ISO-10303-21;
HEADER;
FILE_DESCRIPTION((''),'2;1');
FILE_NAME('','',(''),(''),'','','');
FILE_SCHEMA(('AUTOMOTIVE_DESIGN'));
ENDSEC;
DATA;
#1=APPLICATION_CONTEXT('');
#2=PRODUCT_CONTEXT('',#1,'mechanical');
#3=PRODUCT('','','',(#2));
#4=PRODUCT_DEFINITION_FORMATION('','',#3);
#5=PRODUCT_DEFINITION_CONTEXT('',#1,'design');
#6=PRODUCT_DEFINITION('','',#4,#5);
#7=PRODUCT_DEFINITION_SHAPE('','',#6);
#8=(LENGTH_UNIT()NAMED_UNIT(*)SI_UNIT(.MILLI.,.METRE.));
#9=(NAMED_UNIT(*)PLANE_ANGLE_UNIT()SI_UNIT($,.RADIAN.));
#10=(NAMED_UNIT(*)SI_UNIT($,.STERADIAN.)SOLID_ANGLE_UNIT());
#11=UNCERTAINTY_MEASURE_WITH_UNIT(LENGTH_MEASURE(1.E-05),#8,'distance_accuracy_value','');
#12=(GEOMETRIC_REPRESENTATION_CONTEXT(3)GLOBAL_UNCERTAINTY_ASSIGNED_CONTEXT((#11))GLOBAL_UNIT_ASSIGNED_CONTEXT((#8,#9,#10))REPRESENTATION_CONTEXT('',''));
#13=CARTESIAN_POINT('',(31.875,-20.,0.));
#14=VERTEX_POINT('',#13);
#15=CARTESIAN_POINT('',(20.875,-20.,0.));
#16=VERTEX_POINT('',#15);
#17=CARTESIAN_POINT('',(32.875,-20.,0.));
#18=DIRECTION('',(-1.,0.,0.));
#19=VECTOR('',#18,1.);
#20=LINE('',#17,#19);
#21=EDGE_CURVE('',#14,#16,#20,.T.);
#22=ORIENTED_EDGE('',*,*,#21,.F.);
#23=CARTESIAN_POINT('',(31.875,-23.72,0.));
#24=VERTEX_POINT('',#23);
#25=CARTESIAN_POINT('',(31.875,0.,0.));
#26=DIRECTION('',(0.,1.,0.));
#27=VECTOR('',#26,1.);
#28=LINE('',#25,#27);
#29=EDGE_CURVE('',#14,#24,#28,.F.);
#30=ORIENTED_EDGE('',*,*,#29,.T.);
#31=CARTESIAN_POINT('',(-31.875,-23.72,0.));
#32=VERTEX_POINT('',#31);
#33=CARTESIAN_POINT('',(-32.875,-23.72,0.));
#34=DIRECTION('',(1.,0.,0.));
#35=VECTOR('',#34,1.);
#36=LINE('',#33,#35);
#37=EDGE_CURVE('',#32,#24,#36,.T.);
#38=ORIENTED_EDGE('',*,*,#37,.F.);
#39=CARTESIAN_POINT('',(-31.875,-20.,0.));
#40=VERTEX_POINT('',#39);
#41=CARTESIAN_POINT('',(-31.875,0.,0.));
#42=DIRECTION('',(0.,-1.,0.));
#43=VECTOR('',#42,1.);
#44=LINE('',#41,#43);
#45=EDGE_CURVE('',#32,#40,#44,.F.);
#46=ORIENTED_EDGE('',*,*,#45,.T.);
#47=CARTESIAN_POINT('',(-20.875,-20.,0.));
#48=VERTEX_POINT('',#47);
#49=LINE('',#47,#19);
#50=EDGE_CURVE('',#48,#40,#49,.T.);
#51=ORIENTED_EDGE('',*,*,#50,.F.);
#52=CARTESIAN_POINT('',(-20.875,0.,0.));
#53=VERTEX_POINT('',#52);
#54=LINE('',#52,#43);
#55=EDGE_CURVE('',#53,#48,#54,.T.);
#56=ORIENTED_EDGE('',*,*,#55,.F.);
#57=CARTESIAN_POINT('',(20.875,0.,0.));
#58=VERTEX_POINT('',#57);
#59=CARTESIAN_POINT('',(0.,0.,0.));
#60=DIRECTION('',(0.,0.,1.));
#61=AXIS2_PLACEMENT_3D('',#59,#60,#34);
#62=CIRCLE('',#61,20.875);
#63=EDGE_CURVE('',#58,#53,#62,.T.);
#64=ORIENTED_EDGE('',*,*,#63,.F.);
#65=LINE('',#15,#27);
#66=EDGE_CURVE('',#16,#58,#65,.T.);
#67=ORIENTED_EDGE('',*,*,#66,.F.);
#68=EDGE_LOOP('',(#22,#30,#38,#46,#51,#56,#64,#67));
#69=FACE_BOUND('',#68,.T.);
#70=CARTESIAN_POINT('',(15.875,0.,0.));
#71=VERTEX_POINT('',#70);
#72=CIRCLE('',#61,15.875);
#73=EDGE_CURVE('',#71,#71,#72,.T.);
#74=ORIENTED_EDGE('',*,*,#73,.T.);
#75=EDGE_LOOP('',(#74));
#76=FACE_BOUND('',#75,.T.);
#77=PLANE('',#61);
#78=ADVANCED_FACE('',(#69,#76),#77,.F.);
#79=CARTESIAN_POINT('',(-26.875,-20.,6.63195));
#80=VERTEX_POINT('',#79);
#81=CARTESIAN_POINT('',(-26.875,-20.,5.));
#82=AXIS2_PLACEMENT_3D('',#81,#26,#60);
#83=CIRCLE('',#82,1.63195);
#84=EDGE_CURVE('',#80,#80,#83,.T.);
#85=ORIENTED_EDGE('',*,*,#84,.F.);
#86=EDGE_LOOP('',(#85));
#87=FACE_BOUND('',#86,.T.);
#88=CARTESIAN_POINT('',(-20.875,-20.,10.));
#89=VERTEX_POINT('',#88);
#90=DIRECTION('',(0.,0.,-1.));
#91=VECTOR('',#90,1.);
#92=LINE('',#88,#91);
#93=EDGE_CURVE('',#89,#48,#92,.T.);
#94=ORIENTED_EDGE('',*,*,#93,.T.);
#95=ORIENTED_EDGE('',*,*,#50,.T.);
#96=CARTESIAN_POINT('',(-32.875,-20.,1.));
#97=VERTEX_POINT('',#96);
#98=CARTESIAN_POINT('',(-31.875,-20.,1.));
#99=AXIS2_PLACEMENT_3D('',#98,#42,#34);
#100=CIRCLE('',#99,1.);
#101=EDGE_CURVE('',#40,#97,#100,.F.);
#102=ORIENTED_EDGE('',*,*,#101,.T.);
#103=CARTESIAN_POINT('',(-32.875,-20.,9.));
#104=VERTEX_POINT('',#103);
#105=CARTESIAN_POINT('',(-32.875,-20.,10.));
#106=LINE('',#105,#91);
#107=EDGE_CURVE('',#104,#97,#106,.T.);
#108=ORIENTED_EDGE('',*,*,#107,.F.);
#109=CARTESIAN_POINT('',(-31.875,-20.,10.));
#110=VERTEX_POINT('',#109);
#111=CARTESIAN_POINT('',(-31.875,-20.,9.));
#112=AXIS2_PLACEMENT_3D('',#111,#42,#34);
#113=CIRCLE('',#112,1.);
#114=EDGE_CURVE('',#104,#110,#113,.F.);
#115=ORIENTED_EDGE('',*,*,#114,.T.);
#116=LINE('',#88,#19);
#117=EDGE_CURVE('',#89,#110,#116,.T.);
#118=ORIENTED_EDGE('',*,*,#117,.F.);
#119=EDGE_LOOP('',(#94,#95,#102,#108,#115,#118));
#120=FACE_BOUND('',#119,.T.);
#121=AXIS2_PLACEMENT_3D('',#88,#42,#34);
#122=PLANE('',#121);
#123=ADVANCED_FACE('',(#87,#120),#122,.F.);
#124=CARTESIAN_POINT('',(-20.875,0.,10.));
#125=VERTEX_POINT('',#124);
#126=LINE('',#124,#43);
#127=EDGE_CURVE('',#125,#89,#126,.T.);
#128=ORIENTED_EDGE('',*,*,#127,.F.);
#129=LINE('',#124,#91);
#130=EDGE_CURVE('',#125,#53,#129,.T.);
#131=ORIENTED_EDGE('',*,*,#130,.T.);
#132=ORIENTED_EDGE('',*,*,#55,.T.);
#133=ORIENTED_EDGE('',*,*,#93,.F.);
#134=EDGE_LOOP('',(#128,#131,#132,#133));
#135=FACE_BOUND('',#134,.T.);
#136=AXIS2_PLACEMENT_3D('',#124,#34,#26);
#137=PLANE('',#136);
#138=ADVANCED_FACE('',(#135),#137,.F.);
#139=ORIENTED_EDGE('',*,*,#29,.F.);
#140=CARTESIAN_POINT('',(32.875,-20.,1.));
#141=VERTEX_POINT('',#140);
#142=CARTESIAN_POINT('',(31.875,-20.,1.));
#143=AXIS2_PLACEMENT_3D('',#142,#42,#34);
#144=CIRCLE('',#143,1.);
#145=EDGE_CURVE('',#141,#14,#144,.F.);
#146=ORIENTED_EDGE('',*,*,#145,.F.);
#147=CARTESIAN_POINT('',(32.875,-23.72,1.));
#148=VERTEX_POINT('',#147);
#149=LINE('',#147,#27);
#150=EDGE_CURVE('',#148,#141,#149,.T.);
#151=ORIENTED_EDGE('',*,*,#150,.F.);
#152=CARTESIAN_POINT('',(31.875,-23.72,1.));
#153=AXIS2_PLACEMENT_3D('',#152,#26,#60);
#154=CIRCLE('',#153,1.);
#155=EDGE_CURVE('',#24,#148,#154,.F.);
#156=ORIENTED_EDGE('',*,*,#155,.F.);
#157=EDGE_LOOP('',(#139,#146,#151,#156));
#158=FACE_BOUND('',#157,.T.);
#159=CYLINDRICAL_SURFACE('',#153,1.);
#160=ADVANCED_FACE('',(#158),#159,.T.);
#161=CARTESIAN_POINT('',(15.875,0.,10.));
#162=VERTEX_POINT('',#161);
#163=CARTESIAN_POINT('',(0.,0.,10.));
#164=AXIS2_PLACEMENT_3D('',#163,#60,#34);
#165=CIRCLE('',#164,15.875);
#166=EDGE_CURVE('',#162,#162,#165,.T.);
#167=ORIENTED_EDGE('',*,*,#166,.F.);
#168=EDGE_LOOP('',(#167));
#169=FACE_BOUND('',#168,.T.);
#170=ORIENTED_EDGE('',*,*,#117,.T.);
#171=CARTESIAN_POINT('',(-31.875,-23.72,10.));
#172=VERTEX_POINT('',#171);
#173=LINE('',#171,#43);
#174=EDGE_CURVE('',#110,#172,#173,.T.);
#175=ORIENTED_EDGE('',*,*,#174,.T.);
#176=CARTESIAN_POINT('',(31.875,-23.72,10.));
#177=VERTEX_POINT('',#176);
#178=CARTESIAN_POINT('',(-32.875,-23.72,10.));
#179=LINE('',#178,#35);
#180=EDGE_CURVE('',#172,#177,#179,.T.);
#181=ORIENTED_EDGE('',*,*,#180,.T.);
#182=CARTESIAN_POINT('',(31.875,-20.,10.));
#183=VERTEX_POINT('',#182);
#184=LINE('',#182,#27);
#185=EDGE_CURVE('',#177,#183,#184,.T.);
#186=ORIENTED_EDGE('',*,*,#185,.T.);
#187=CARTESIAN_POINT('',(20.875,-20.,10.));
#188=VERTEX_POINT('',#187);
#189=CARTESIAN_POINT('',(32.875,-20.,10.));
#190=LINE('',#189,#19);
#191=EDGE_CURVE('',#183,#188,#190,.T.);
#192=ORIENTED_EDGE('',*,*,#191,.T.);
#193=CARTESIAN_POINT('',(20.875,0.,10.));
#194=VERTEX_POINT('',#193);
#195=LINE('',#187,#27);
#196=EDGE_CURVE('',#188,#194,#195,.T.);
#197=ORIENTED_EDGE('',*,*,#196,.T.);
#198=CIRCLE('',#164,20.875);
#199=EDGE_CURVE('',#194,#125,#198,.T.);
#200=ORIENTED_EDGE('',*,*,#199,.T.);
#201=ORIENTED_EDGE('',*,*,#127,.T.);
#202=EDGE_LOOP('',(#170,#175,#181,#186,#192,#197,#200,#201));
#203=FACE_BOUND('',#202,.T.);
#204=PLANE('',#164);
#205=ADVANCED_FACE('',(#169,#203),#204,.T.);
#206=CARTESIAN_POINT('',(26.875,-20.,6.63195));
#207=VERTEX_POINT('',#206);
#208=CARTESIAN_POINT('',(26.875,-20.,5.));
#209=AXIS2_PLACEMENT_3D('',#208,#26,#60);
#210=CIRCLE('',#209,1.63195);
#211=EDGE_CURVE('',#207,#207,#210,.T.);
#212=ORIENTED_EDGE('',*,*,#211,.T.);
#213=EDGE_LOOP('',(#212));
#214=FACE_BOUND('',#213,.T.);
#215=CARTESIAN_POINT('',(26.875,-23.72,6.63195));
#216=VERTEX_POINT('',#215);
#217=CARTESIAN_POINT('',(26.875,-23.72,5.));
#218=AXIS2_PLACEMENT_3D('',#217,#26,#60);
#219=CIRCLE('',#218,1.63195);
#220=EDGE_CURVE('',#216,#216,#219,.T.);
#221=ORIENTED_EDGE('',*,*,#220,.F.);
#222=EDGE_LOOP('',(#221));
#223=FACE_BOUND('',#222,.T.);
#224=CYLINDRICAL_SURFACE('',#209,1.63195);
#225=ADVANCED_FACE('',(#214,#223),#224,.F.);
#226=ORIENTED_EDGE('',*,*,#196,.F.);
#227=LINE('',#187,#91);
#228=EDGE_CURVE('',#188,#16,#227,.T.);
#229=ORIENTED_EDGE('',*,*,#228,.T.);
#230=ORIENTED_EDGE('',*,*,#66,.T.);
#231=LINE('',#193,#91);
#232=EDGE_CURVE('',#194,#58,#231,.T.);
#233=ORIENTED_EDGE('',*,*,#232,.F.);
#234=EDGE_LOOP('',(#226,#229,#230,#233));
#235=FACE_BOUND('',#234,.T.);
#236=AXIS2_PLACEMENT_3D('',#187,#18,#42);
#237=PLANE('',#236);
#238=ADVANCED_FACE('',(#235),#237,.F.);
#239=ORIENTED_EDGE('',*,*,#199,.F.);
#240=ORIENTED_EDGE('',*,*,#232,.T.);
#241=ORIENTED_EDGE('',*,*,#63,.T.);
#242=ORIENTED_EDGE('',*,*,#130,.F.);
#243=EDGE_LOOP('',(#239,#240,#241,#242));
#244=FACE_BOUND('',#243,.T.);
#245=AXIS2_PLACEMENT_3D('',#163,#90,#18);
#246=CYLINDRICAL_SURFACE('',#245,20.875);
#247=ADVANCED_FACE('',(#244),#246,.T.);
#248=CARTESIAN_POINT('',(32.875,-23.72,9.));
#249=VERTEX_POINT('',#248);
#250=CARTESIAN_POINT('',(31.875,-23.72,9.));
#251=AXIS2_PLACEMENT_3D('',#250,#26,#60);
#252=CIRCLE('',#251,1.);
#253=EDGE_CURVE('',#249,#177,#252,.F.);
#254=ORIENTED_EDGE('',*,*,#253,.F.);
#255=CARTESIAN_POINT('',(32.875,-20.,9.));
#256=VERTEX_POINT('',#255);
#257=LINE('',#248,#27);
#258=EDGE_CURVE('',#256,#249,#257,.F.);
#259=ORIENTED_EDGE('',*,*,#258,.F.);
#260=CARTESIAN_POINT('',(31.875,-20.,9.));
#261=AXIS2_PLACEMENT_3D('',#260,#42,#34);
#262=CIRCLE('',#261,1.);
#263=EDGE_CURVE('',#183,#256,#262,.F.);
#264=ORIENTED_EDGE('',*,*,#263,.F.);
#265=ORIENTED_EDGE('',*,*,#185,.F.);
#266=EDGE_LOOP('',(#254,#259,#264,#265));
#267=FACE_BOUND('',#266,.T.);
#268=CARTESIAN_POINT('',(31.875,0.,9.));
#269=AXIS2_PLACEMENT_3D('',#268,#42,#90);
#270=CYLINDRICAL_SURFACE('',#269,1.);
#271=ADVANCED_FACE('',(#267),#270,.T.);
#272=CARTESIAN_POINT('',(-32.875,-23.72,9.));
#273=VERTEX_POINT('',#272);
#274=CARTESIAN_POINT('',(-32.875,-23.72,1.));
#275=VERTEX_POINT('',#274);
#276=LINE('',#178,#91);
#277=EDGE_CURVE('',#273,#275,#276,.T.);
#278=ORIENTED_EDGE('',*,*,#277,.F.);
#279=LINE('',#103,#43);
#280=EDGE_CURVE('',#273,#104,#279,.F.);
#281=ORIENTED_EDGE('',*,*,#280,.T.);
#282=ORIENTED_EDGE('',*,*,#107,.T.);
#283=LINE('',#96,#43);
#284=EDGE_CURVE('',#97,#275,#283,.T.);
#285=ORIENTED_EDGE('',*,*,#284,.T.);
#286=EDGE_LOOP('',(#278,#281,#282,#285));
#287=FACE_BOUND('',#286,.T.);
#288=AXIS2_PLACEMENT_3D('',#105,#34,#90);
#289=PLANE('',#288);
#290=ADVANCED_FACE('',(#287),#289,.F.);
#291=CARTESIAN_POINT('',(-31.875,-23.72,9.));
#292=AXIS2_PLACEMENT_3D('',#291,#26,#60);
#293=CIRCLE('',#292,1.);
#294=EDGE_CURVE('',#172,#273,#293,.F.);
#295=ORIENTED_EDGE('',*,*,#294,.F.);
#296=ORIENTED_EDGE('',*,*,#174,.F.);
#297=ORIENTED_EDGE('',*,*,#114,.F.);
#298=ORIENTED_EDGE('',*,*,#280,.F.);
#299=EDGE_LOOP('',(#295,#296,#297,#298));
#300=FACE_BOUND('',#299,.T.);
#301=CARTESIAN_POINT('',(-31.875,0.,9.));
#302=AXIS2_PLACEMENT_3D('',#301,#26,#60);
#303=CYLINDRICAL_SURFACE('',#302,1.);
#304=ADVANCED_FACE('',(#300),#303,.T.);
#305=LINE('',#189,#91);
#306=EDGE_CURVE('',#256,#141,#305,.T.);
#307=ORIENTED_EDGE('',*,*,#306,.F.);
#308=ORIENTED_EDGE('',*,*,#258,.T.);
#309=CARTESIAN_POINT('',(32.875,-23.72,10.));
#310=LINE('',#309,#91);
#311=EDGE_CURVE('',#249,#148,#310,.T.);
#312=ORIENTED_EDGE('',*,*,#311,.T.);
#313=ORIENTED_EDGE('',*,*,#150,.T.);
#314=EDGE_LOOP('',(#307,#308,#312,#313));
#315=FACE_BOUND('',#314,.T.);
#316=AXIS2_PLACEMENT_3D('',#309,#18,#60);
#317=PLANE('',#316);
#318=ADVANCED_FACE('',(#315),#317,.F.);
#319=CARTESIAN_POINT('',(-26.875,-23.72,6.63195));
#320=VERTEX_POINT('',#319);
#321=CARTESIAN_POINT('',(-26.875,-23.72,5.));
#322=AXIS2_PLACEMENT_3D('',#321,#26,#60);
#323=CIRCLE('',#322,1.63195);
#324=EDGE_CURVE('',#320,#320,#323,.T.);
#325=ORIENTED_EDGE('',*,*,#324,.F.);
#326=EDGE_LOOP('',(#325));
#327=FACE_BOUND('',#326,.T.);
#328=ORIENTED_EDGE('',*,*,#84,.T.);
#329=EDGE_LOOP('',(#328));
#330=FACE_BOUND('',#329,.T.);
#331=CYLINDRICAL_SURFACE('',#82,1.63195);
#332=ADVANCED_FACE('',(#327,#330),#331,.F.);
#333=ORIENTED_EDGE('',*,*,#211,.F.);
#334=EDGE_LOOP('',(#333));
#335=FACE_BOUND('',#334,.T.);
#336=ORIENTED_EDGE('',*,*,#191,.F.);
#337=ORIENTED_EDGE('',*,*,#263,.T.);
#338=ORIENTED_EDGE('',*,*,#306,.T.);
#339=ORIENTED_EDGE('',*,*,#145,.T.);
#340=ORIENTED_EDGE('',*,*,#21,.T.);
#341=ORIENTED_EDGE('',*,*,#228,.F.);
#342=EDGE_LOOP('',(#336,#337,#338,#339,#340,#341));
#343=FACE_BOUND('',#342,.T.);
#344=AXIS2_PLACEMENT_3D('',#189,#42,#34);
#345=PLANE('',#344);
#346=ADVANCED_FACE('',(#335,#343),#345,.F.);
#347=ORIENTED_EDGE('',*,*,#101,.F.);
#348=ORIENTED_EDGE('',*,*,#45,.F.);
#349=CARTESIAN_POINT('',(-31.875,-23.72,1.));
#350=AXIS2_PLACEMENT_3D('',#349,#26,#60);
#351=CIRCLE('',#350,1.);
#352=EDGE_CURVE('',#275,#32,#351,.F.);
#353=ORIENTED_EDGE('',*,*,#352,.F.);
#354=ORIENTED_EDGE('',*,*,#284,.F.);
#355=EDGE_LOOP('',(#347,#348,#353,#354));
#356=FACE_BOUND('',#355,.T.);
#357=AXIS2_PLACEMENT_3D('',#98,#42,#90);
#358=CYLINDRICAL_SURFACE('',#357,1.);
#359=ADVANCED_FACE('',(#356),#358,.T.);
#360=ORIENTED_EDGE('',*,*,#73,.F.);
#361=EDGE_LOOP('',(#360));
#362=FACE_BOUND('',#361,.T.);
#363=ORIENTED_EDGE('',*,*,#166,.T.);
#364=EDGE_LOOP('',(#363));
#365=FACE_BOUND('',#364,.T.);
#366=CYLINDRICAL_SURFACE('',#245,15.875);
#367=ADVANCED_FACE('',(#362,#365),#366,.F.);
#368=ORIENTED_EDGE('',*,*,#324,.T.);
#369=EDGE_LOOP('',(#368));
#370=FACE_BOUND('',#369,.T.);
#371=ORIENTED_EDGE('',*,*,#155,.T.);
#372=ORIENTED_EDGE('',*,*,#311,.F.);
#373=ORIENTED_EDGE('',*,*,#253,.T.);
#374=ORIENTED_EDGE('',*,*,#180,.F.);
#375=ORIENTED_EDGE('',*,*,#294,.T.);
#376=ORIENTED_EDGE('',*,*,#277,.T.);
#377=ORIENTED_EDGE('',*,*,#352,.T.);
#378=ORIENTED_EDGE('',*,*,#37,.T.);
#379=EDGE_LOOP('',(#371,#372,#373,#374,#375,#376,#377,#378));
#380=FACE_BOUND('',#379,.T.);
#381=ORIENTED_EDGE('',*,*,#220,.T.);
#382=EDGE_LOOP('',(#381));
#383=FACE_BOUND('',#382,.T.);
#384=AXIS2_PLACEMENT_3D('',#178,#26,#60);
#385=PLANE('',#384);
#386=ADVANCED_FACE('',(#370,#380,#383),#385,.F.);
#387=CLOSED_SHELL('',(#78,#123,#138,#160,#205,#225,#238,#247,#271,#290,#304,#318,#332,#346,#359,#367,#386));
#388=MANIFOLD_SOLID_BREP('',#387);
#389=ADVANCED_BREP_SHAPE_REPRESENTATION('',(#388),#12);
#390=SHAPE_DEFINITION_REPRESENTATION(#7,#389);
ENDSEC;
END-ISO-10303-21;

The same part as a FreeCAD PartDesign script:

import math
import FreeCAD as App
import Part
import Sketcher

V = App.Vector
Q = App.Units.Quantity


def edges_at(feature, points):
    """Names of the edges that pass closest to the given points."""
    edges = feature.Shape.Edges
    near = lambda p: min(range(len(edges)), key=lambda i: edges[i].distToShape(Part.Vertex(*p))[0])
    return sorted({f"Edge{near(p) + 1}" for p in points})

doc = App.newDocument("Part")
params = doc.addObject("Spreadsheet::Sheet", "Params")
for row, (alias, value) in enumerate([
    ("sketch1_diameter", "31.75 mm"),
    ("sketch1_width", "12 mm"),
    ("sketch1_height", "20 mm"),
    ("sketch1_height2", "3.72 mm"),
    ("pad1_length", "10 mm"),
    ("fillet_radius", "1 mm"),
    ("hole_diameter", "3.2639 mm"),
], start=1):
    params.set(f"A{row}", alias)
    params.set(f"B{row}", "=" + value)
    params.setAlias(f"B{row}", alias)

body = doc.addObject("PartDesign::Body", "Body")

# Sketch on XY plane
sketch1 = body.newObject("Sketcher::SketchObject", "Sketch")
sketch1.AttachmentSupport = (doc.getObject("XY_Plane"), [""])
sketch1.MapMode = "FlatFace"
sketch1.addGeometry(Part.LineSegment(V(-20.875, 0, 0), V(-20.875, -20, 0)), False)
sketch1.addGeometry(Part.LineSegment(V(-20.875, -20, 0), V(-32.875, -20, 0)), False)
sketch1.addGeometry(Part.LineSegment(V(-32.875, -20, 0), V(-32.875, -23.72, 0)), False)
sketch1.addGeometry(Part.LineSegment(V(-32.875, -23.72, 0), V(32.875, -23.72, 0)), False)
sketch1.addGeometry(Part.LineSegment(V(32.875, -23.72, 0), V(32.875, -20, 0)), False)
sketch1.addGeometry(Part.LineSegment(V(32.875, -20, 0), V(20.875, -20, 0)), False)
sketch1.addGeometry(Part.LineSegment(V(20.875, -20, 0), V(20.875, 0, 0)), False)
sketch1.addGeometry(Part.ArcOfCircle(Part.Circle(V(0, 0, 0), V(0, 0, 1), 20.875), math.radians(0), math.radians(180)), False)
sketch1.addGeometry(Part.Circle(V(0, 0, 0), V(0, 0, 1), 15.875), False)
sketch1.addConstraint(Sketcher.Constraint("Coincident", 0, 2, 1, 1))
sketch1.addConstraint(Sketcher.Constraint("Coincident", 1, 2, 2, 1))
sketch1.addConstraint(Sketcher.Constraint("Coincident", 2, 2, 3, 1))
sketch1.addConstraint(Sketcher.Constraint("Coincident", 3, 2, 4, 1))
sketch1.addConstraint(Sketcher.Constraint("Coincident", 4, 2, 5, 1))
sketch1.addConstraint(Sketcher.Constraint("Coincident", 5, 2, 6, 1))
sketch1.addConstraint(Sketcher.Constraint("Tangent", 6, 2, 7, 1))
sketch1.addConstraint(Sketcher.Constraint("Tangent", 7, 2, 0, 1))
sketch1.addConstraint(Sketcher.Constraint("Vertical", 0))
sketch1.addConstraint(Sketcher.Constraint("Horizontal", 1))
sketch1.addConstraint(Sketcher.Constraint("Vertical", 2))
sketch1.addConstraint(Sketcher.Constraint("Horizontal", 3))
sketch1.addConstraint(Sketcher.Constraint("Vertical", 4))
sketch1.addConstraint(Sketcher.Constraint("Horizontal", 5))
sketch1.addConstraint(Sketcher.Constraint("Vertical", 6))
sketch1.addConstraint(Sketcher.Constraint("Coincident", 7, 3, -1, 1))
sketch1.addConstraint(Sketcher.Constraint("Coincident", 8, 3, -1, 1))
sketch1.addConstraint(Sketcher.Constraint("Symmetric", 1, 2, 4, 2, -2))
sketch1.addConstraint(Sketcher.Constraint("Diameter", 8, Q("31.75 mm")))
sketch1.addConstraint(Sketcher.Constraint("DistanceX", 1, 2, 1, 1, Q("12 mm")))
sketch1.addConstraint(Sketcher.Constraint("DistanceY", 0, 2, 0, 1, Q("20 mm")))
sketch1.addConstraint(Sketcher.Constraint("Radius", 7, Q("20.875 mm")))
sketch1.addConstraint(Sketcher.Constraint("DistanceY", 2, 2, 2, 1, Q("3.72 mm")))
sketch1.setExpression("Constraints[18]", "Params.sketch1_diameter")
sketch1.setExpression("Constraints[19]", "Params.sketch1_width")
sketch1.setExpression("Constraints[20]", "Params.sketch1_height")
sketch1.setExpression("Constraints[22]", "Params.sketch1_height2")
pad1 = body.newObject("PartDesign::Pad", "Pad")
pad1.Profile = sketch1
pad1.setExpression("Length", "Params.pad1_length")
doc.recompute()

fillet = body.newObject("PartDesign::Fillet", "Fillet")
fillet.Base = (pad1, edges_at(pad1, [
    (-32.875, -21.86, 10),
    (32.875, -21.86, 10),
    (32.875, -21.86, 0),
    (-32.875, -21.86, 0),
]))
fillet.setExpression("Radius", "Params.fillet_radius")

# Sketch on XZ plane
sketch2 = body.newObject("Sketcher::SketchObject", "Sketch001")
sketch2.AttachmentSupport = (doc.getObject("XZ_Plane"), [""])
sketch2.MapMode = "FlatFace"
sketch2.AttachmentOffset = App.Placement(V(0, 0, 20), App.Rotation())
sketch2.addGeometry(Part.Circle(V(-26.875, 5, 0), V(0, 0, 1), 1.63195), False)
sketch2.addGeometry(Part.Circle(V(26.875, 5, 0), V(0, 0, 1), 1.63195), False)
sketch2.addConstraint(Sketcher.Constraint("Equal", 0, 1))
sketch2.addConstraint(Sketcher.Constraint("Symmetric", 0, 3, 1, 3, -2))
sketch2.addConstraint(Sketcher.Constraint("DistanceY", -1, 1, 0, 3, Q("5 mm")))
sketch2.addConstraint(Sketcher.Constraint("Diameter", 0, Q("3.2639 mm")))
sketch2.addConstraint(Sketcher.Constraint("DistanceX", 0, 3, 1, 3, Q("53.75 mm")))
doc.recompute()
hole = body.newObject("PartDesign::Hole", "Hole")
hole.Profile = sketch2
hole.ThreadType = "None"
hole.setExpression("Diameter", "Params.hole_diameter")
hole.DepthType = "ThroughAll"
hole.Reversed = True

doc.recompute()
